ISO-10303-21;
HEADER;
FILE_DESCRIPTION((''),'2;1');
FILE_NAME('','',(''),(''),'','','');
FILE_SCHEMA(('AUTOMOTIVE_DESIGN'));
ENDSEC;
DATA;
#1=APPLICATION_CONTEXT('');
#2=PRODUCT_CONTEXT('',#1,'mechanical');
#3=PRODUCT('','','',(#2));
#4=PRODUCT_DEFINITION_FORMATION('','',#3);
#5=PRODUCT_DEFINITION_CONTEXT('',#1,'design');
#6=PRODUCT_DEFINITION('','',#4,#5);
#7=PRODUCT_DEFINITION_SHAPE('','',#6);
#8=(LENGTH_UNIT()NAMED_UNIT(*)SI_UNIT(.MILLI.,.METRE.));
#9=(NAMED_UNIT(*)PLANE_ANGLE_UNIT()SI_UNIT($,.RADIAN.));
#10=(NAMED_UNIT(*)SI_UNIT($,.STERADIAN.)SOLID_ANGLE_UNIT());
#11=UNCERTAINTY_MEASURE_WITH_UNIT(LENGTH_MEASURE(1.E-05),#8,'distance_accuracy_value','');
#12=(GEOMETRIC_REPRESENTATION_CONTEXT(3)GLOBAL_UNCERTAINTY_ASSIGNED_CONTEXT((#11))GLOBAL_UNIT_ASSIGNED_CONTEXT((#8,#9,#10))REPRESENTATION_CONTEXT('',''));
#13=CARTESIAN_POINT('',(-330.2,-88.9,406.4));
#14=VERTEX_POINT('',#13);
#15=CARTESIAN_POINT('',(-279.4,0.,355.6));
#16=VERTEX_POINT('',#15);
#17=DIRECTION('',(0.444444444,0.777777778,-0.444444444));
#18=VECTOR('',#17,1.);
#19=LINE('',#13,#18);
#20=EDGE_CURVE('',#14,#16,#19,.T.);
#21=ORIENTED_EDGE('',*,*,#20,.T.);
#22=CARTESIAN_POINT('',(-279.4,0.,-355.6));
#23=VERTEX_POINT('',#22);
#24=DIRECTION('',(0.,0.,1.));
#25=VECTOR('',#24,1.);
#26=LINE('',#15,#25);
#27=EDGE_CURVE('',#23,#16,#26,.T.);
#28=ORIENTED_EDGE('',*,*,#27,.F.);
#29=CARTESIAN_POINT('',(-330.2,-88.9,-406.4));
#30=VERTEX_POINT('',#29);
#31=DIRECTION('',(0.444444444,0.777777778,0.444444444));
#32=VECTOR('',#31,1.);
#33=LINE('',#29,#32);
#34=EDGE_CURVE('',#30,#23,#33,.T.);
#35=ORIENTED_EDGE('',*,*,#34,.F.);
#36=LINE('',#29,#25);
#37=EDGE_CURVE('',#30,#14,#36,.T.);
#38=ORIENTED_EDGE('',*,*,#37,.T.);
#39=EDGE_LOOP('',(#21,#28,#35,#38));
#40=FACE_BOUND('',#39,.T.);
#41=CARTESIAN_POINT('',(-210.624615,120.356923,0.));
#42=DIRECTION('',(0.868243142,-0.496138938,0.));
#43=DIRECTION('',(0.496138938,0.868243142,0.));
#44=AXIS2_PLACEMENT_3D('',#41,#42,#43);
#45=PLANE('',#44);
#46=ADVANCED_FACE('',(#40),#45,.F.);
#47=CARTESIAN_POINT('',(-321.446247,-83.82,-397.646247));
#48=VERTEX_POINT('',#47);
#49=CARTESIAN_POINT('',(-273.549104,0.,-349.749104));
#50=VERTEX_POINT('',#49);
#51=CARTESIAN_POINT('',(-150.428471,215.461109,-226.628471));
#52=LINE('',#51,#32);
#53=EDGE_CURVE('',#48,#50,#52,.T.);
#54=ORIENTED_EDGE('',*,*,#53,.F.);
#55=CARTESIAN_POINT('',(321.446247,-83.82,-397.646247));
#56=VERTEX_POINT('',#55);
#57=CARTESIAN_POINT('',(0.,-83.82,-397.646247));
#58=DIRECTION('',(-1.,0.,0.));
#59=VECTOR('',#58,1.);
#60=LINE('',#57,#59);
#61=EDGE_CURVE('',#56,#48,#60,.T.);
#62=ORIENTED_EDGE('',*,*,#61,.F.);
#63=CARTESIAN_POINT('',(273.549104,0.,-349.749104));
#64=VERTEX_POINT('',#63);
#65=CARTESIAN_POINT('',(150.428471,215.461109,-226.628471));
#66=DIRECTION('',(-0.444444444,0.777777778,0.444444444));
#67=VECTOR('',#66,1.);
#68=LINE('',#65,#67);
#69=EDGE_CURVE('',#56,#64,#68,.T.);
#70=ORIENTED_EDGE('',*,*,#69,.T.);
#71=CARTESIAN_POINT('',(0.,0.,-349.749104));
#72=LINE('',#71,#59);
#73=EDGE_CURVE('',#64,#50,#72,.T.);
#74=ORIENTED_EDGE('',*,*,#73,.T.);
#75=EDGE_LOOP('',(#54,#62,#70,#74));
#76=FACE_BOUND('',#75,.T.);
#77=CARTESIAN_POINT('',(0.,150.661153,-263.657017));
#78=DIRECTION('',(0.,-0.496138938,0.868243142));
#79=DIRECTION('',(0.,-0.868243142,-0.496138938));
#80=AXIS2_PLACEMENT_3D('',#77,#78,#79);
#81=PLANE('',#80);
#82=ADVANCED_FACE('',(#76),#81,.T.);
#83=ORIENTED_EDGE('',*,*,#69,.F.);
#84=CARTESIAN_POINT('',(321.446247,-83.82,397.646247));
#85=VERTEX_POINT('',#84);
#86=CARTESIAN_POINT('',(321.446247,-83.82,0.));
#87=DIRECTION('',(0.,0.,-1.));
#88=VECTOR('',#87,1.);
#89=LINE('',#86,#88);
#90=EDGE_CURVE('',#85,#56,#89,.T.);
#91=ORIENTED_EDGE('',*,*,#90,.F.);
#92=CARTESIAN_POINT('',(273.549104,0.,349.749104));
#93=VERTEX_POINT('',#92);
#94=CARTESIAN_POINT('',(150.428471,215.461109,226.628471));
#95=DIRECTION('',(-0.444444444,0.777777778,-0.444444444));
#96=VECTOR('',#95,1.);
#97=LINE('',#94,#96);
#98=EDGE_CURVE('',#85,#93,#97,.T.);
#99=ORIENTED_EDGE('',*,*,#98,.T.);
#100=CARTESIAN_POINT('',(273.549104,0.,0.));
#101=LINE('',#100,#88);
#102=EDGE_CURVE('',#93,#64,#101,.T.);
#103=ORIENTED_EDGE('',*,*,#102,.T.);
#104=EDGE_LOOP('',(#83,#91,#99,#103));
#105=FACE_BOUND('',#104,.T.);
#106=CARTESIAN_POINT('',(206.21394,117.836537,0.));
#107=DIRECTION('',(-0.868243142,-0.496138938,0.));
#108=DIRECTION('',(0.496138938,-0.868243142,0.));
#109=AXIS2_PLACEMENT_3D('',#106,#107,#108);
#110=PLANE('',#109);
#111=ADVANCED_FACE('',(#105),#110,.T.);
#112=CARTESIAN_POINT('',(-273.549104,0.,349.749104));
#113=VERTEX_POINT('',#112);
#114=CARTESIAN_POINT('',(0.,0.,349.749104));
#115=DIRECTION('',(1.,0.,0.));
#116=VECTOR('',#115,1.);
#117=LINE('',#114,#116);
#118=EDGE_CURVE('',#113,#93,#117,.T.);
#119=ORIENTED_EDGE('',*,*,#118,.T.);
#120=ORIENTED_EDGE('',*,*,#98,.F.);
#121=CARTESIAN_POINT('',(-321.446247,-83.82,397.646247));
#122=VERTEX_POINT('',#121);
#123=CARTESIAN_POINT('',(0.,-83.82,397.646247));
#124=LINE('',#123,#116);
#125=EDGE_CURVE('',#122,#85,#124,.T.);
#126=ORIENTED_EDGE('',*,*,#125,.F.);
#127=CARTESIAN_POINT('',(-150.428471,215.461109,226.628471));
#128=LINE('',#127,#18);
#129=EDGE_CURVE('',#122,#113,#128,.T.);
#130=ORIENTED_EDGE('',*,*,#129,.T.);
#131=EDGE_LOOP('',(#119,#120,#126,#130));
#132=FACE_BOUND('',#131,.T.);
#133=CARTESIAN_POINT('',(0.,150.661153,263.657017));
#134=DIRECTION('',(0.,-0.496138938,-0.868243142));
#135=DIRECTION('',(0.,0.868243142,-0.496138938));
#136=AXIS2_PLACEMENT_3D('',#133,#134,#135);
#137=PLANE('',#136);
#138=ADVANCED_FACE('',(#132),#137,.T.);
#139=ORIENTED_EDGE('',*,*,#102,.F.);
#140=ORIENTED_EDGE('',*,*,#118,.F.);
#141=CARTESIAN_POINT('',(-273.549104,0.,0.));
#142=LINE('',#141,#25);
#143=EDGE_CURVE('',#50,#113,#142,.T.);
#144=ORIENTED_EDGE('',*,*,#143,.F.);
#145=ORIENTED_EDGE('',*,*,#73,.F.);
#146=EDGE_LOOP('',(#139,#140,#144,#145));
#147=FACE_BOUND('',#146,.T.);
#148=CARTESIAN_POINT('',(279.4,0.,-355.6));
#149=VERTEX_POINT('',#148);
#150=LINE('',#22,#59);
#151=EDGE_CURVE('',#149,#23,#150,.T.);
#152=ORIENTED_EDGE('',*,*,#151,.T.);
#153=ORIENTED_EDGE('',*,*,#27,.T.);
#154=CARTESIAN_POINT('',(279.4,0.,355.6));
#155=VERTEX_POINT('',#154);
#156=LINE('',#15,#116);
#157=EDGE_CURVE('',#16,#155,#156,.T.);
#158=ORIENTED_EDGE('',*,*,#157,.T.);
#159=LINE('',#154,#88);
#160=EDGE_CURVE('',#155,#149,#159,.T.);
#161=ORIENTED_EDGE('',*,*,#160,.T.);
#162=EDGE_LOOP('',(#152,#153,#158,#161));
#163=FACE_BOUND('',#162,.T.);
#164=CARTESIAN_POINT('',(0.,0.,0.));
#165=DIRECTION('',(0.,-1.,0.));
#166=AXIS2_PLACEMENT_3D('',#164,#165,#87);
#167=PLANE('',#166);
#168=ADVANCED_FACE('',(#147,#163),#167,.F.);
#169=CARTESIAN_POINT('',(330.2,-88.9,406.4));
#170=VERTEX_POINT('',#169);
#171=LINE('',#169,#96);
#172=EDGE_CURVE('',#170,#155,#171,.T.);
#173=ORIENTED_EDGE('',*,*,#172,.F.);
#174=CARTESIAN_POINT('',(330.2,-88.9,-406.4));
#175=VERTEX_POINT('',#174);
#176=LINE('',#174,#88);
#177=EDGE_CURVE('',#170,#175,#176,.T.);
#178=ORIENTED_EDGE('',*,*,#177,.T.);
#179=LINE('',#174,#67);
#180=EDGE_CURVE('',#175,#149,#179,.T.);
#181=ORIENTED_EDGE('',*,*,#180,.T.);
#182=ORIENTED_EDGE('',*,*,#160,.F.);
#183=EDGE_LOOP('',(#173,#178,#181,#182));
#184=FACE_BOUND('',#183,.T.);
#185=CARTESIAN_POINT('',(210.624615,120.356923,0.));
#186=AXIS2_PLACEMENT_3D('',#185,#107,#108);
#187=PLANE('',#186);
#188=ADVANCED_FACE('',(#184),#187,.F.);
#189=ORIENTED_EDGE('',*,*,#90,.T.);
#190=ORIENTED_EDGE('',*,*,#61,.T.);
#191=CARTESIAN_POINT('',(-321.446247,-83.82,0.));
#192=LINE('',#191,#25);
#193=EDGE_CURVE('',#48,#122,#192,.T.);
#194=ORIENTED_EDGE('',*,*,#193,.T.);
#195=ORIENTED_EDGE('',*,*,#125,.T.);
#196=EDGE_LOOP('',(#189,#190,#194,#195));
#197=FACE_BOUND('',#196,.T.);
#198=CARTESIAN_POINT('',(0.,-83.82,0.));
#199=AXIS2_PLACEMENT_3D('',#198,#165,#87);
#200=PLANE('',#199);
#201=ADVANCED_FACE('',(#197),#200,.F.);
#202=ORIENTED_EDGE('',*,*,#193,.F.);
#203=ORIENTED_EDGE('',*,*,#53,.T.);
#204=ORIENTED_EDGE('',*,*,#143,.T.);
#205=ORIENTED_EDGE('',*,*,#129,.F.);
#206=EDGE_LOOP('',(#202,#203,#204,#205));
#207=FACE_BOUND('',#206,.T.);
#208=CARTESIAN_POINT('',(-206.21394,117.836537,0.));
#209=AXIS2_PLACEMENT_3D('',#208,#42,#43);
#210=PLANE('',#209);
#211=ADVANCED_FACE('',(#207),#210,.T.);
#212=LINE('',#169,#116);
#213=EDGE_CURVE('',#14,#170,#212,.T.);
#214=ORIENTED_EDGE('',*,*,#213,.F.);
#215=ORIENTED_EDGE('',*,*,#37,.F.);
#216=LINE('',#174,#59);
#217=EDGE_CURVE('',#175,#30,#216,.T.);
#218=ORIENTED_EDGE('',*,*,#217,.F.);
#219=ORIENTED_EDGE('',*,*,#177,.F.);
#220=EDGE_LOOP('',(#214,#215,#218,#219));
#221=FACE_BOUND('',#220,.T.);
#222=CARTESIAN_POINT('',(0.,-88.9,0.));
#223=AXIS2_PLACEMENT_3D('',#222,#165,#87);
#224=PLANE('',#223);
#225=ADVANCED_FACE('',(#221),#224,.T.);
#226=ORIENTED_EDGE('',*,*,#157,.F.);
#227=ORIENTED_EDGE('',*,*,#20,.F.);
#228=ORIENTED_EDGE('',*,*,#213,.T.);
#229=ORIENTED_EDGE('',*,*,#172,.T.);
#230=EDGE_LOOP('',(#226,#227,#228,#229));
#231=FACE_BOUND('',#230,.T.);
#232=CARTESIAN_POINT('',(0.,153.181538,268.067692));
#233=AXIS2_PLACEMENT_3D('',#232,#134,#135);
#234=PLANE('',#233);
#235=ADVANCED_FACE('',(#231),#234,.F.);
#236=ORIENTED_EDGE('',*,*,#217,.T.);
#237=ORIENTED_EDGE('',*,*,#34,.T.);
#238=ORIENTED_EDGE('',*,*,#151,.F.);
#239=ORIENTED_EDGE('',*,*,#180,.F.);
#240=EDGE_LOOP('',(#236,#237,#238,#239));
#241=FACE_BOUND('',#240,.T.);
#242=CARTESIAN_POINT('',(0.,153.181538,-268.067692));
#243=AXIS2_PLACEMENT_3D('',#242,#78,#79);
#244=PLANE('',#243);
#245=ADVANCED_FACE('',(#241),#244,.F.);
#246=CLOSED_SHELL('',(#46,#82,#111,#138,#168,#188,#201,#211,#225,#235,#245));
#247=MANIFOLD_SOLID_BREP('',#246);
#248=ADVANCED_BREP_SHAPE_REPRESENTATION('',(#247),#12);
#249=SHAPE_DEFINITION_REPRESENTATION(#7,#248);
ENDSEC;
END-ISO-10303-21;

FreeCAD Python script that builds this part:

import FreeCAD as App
import Part
import Sketcher

V = App.Vector
Q = App.Units.Quantity


def faces_at(feature, points):
    """Names of the faces that lie closest to the given points."""
    faces = feature.Shape.Faces
    near = lambda p: min(range(len(faces)), key=lambda i: faces[i].distToShape(Part.Vertex(*p))[0])
    return sorted({f"Face{near(p) + 1}" for p in points})


def add_polygon(sketch, points):
    """Adds a closed chain of lines whose ends are joined by coincident constraints."""
    first, n = sketch.GeometryCount, len(points)
    for a, b in zip(points, points[1:] + points[:1]):
        sketch.addGeometry(Part.LineSegment(App.Vector(*a, 0), App.Vector(*b, 0)), False)
    for i in range(n):
        sketch.addConstraint(Sketcher.Constraint("Coincident", first + i, 2, first + (i + 1) % n, 1))

doc = App.newDocument("Part")
body = doc.addObject("PartDesign::Body", "Body")

# Sketch on XZ plane
sketch1 = body.newObject("Sketcher::SketchObject", "Sketch")
sketch1.AttachmentSupport = (doc.getObject("XZ_Plane"), [""])
sketch1.MapMode = "FlatFace"
sketch1.AttachmentOffset = App.Placement(V(0, 0, 3.5 * 25.4), App.Rotation())
add_polygon(sketch1, [(330.2, -406.4), (-330.2, -406.4), (-330.2, 406.4), (330.2, 406.4)])  # lines 0-3
sketch1.addConstraint(Sketcher.Constraint("Horizontal", 0))
sketch1.addConstraint(Sketcher.Constraint("Vertical", 1))
sketch1.addConstraint(Sketcher.Constraint("Horizontal", 2))
sketch1.addConstraint(Sketcher.Constraint("Vertical", 3))
sketch1.addConstraint(Sketcher.Constraint("Symmetric", 0, 2, 2, 2, -1, 1))
sketch1.addConstraint(Sketcher.Constraint("DistanceX", 0, 2, 0, 1, Q("26 in")))
sketch1.addConstraint(Sketcher.Constraint("DistanceY", 1, 1, 1, 2, Q("32 in")))

# Sketch on XZ plane
sketch2 = body.newObject("Sketcher::SketchObject", "Sketch001")
sketch2.AttachmentSupport = (doc.getObject("XZ_Plane"), [""])
sketch2.MapMode = "FlatFace"
add_polygon(sketch2, [(-279.4, 355.6), (279.4, 355.6), (279.4, -355.6), (-279.4, -355.6)])  # lines 0-3
sketch2.addConstraint(Sketcher.Constraint("Horizontal", 0))
sketch2.addConstraint(Sketcher.Constraint("Vertical", 1))
sketch2.addConstraint(Sketcher.Constraint("Horizontal", 2))
sketch2.addConstraint(Sketcher.Constraint("Vertical", 3))
sketch2.addConstraint(Sketcher.Constraint("Symmetric", 0, 2, 2, 2, -1, 1))
sketch2.addConstraint(Sketcher.Constraint("DistanceX", 0, 1, 0, 2, Q("22 in")))
sketch2.addConstraint(Sketcher.Constraint("DistanceY", 1, 2, 1, 1, Q("28 in")))

additiveloft = body.newObject("PartDesign::AdditiveLoft", "AdditiveLoft")
additiveloft.Profile = sketch1
additiveloft.Sections = [sketch2]
doc.recompute()

thickness = body.newObject("PartDesign::Thickness", "Thickness")
thickness.Base = (additiveloft, faces_at(additiveloft, [(0, 0, 0)]))
thickness.Value = Q("0.2 in")
thickness.Reversed = True
thickness.Join = "Intersection"

doc.recompute()
